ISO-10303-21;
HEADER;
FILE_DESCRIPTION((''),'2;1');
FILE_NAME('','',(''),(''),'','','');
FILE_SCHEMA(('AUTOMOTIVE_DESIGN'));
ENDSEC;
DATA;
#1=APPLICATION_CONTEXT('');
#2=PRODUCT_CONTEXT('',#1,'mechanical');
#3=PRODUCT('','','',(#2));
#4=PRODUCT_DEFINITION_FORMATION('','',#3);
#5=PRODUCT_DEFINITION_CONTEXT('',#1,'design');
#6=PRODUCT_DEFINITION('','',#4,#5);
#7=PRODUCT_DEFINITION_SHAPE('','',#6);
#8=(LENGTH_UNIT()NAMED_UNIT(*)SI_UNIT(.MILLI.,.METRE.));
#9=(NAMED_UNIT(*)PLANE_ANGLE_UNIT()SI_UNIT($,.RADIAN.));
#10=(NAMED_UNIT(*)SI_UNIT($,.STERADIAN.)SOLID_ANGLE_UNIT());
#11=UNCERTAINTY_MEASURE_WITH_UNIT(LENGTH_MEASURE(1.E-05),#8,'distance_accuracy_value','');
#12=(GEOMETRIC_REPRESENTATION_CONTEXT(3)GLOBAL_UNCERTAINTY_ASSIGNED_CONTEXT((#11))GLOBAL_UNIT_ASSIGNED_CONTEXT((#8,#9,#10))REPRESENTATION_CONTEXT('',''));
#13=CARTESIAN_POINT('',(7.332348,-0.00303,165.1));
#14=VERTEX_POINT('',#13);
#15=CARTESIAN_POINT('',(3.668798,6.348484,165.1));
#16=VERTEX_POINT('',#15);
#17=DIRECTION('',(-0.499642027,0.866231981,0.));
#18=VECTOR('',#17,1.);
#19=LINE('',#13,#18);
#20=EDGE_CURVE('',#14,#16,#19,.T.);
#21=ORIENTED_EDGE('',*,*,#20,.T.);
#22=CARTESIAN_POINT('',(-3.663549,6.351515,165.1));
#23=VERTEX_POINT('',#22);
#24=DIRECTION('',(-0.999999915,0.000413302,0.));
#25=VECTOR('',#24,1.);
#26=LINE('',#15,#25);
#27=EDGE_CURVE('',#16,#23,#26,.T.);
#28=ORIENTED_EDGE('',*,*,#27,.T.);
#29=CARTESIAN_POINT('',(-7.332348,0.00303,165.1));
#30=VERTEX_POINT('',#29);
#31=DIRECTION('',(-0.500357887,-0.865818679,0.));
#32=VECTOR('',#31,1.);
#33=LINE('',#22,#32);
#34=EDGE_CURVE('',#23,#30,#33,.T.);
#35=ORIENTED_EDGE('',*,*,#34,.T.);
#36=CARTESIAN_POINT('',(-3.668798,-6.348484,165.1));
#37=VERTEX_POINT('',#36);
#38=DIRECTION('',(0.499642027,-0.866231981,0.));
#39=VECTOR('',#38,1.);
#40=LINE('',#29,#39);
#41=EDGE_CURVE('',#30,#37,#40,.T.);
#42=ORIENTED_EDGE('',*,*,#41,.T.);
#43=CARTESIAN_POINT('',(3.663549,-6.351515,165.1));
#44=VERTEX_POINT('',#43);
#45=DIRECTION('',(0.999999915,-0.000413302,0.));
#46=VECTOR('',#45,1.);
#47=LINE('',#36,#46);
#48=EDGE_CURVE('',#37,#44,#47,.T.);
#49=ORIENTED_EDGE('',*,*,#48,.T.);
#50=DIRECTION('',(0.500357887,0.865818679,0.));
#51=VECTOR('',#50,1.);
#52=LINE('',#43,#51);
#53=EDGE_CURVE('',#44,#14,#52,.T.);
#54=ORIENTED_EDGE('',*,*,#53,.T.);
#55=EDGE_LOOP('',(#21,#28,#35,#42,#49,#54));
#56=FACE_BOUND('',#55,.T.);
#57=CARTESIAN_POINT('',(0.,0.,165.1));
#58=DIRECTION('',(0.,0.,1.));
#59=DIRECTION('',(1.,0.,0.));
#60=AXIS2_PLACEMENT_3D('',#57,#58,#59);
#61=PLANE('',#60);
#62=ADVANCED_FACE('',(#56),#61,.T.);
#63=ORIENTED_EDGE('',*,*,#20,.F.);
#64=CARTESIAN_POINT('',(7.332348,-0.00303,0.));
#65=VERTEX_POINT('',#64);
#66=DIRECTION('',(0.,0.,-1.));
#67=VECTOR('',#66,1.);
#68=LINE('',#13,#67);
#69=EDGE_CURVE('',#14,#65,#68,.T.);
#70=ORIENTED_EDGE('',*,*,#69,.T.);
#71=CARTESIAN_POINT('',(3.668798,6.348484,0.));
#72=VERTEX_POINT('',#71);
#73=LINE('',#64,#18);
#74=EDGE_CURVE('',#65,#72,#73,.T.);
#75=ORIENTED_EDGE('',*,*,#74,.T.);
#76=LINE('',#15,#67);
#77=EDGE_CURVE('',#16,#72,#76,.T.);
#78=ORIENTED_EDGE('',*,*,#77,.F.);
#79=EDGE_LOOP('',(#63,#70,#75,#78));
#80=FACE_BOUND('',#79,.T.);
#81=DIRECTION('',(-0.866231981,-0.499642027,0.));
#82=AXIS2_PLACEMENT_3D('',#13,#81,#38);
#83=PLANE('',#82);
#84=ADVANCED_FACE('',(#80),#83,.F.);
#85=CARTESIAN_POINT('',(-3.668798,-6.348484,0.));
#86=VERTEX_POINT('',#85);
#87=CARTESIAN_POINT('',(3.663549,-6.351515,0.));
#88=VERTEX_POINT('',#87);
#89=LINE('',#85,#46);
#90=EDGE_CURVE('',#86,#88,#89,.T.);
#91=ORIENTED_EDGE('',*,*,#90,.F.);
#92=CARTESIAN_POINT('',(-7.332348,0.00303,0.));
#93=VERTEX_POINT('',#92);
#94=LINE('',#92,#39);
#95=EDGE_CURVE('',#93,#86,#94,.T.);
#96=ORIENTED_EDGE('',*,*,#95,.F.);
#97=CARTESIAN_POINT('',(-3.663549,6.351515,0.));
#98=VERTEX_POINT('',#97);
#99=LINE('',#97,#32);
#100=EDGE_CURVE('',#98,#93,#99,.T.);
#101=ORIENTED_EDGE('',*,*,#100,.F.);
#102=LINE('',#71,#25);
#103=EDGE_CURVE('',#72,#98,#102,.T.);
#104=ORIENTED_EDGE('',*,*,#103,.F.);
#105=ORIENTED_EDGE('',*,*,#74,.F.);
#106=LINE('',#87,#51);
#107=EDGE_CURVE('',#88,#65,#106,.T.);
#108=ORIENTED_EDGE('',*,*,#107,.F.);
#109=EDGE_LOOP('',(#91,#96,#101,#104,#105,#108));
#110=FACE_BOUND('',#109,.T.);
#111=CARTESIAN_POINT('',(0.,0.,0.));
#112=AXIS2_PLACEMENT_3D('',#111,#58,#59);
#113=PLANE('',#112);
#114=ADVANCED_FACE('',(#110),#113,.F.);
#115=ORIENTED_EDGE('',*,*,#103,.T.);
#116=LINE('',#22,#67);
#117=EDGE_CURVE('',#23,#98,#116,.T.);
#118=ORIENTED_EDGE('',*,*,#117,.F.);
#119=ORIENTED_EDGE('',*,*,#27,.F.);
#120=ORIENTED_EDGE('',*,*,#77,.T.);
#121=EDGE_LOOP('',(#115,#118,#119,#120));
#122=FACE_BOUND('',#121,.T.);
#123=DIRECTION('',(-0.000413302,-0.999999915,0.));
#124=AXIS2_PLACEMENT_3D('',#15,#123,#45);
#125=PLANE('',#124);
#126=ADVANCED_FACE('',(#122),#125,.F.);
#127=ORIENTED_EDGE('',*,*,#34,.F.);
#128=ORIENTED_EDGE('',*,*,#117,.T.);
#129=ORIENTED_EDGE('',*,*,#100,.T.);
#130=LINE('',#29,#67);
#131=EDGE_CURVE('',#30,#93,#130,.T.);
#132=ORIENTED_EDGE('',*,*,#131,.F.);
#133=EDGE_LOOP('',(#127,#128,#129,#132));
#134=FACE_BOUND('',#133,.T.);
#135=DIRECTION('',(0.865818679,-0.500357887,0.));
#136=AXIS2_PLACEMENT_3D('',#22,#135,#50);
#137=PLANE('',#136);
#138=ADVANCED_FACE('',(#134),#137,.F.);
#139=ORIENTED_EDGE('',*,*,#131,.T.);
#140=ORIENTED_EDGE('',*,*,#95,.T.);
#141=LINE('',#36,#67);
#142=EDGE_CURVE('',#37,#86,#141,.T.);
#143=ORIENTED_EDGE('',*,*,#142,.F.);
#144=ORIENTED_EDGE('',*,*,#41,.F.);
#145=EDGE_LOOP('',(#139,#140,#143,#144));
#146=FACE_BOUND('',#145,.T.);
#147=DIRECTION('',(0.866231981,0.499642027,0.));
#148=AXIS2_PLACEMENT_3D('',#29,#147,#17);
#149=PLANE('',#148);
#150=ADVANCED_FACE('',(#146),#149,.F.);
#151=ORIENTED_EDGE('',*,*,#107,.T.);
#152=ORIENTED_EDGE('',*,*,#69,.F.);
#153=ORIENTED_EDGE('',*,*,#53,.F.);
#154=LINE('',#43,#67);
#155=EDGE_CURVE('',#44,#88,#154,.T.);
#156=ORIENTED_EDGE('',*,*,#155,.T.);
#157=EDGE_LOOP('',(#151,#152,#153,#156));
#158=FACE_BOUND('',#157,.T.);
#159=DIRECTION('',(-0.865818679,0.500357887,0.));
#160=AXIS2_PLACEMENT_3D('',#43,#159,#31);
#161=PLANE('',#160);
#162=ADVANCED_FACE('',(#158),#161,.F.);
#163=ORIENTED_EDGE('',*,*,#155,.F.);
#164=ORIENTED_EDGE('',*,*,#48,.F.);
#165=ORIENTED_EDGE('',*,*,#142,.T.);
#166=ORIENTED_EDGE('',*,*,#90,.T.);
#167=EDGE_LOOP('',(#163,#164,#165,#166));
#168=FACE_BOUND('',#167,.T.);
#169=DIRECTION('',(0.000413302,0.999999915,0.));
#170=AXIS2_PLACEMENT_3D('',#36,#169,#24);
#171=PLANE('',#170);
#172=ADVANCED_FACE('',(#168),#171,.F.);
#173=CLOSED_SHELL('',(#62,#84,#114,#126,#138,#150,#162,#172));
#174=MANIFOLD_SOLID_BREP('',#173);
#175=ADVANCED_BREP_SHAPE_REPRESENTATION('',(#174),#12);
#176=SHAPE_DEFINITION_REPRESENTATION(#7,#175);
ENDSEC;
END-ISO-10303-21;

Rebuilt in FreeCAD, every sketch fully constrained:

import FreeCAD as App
import Part
import Sketcher
Q = App.Units.Quantity

doc = App.newDocument("Part")
params = doc.addObject("Spreadsheet::Sheet", "Params")
for row, (alias, value) in enumerate([
    ("pad1_length", "6.5 in"),
], start=1):
    params.set(f"A{row}", alias)
    params.set(f"B{row}", "=" + value)
    params.setAlias(f"B{row}", alias)

body = doc.addObject("PartDesign::Body", "Body")

# Sketch on XY plane
sketch1 = body.newObject("Sketcher::SketchObject", "Sketch")
sketch1.AttachmentSupport = (doc.getObject("XY_Plane"), [""])
sketch1.MapMode = "FlatFace"
sketch1.addGeometry([
    Part.LineSegment(App.Vector(4, -6, 0), App.Vector(7, 0, 0)),  # 0
    Part.LineSegment(App.Vector(7, 0, 0), App.Vector(4, 6, 0)),  # 1
    Part.LineSegment(App.Vector(4, 6, 0), App.Vector(-4, 6, 0)),  # 2
    Part.LineSegment(App.Vector(-4, 6, 0), App.Vector(-7, 0, 0)),  # 3
    Part.LineSegment(App.Vector(-7, 0, 0), App.Vector(-4, -6, 0)),  # 4
    Part.LineSegment(App.Vector(-4, -6, 0), App.Vector(4, -6, 0)),  # 5
], False)
sketch1.addConstraint([
    Sketcher.Constraint("Coincident", 0, 2, 1, 1),
    Sketcher.Constraint("Coincident", 1, 2, 2, 1),
    Sketcher.Constraint("Coincident", 2, 2, 3, 1),
    Sketcher.Constraint("Coincident", 3, 2, 4, 1),
    Sketcher.Constraint("Coincident", 4, 2, 5, 1),
    Sketcher.Constraint("Coincident", 5, 2, 0, 1),
    Sketcher.Constraint("Symmetric", 0, 2, 3, 2, -1, 1),
    Sketcher.Constraint("Symmetric", 1, 2, 4, 2, -1, 1),
    Sketcher.Constraint("Symmetric", 2, 2, 5, 2, -1, 1),
    Sketcher.Constraint("Equal", 0, 1),
    Sketcher.Constraint("Equal", 1, 2),
    Sketcher.Constraint("DistanceY", 4, 2, 2, 2, Q("0.5 in")),
    Sketcher.Constraint("DistanceX", -1, 1, 1, 2, Q("3.668798 mm")),
    Sketcher.Constraint("DistanceX", 3, 2, 2, 2, Q("3.668798 mm")),
    Sketcher.Constraint("DistanceY", 0, 2, -1, 1, Q("0.00303 mm")),
])
pad1 = body.newObject("PartDesign::Pad", "Pad")
pad1.Profile = sketch1
pad1.setExpression("Length", "Params.pad1_length")

doc.recompute()
